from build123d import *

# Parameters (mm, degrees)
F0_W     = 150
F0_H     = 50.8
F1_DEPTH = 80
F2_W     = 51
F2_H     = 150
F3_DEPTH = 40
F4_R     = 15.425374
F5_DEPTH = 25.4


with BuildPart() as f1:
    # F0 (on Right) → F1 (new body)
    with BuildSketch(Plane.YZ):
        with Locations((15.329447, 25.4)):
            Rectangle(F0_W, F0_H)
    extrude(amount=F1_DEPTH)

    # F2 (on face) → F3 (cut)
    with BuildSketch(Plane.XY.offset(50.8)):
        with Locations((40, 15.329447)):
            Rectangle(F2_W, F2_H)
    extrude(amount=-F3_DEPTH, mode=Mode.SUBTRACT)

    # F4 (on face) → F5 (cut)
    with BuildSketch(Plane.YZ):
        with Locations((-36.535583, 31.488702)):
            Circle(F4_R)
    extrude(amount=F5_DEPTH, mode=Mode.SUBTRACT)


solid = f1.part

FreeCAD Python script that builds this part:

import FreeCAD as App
import Part
import Sketcher

V = App.Vector
Q = App.Units.Quantity


def add_polygon(sketch, points):
    """Adds a closed chain of lines whose ends are joined by coincident constraints."""
    first, n = sketch.GeometryCount, len(points)
    for a, b in zip(points, points[1:] + points[:1]):
        sketch.addGeometry(Part.LineSegment(App.Vector(*a, 0), App.Vector(*b, 0)), False)
    for i in range(n):
        sketch.addConstraint(Sketcher.Constraint("Coincident", first + i, 2, first + (i + 1) % n, 1))

doc = App.newDocument("Part")
body = doc.addObject("PartDesign::Body", "Body")

sketch1 = body.newObject("Sketcher::SketchObject", "Sketch")
sketch1.AttachmentSupport = (doc.getObject("YZ_Plane"), [""])
sketch1.MapMode = "FlatFace"
add_polygon(sketch1, [(-59.670553, 50.8), (-59.670553, 0), (90.329447, 0), (90.329447, 50.8)])
sketch1.addConstraint([
    Sketcher.Constraint("Vertical", 0),
    Sketcher.Constraint("Horizontal", 1),
    Sketcher.Constraint("Vertical", 2),
    Sketcher.Constraint("Horizontal", 3),
    Sketcher.Constraint("PointOnObject", 0, 2, -1),
    Sketcher.Constraint("DistanceX", 1, 1, 1, 2, Q("150 mm")),
    Sketcher.Constraint("DistanceY", 0, 2, 0, 1, Q("50.8 mm")),
    Sketcher.Constraint("DistanceX", 0, 2, -1, 1, Q("59.670553 mm")),
])
pad1 = body.newObject("PartDesign::Pad", "Pad")
pad1.Profile = sketch1
pad1.Length = 80

sketch2 = body.newObject("Sketcher::SketchObject", "Sketch001")
sketch2.AttachmentSupport = (doc.getObject("XY_Plane"), [""])
sketch2.MapMode = "FlatFace"
sketch2.AttachmentOffset = App.Placement(V(0, 0, 50.8), App.Rotation())
add_polygon(sketch2, [(14.5, 90.329447), (14.5, -59.670553), (65.5, -59.670553), (65.5, 90.329447)])
sketch2.addConstraint([
    Sketcher.Constraint("Vertical", 0),
    Sketcher.Constraint("Horizontal", 1),
    Sketcher.Constraint("Vertical", 2),
    Sketcher.Constraint("Horizontal", 3),
    Sketcher.Constraint("DistanceX", 1, 1, 1, 2, Q("51 mm")),
    Sketcher.Constraint("DistanceY", 0, 2, 0, 1, Q("150 mm")),
    Sketcher.Constraint("DistanceX", -1, 1, 0, 2, Q("14.5 mm")),
    Sketcher.Constraint("DistanceY", 0, 2, -1, 1, Q("59.670553 mm")),
])
pocket1 = body.newObject("PartDesign::Pocket", "Pocket")
pocket1.Profile = sketch2
pocket1.Length = 40

sketch3 = body.newObject("Sketcher::SketchObject", "Sketch002")
sketch3.AttachmentSupport = (doc.getObject("YZ_Plane"), [""])
sketch3.MapMode = "FlatFace"
sketch3.addGeometry(Part.Circle(V(-36.535583, 31.488702, 0), V(0, 0, 1), 15.425374), False)
sketch3.addConstraint([
    Sketcher.Constraint("Diameter", 0, Q("30.850748 mm")),
    Sketcher.Constraint("DistanceY", -1, 1, 0, 3, Q("31.488702 mm")),
    Sketcher.Constraint("DistanceX", 0, 3, -1, 1, Q("36.535583 mm")),
])
pocket2 = body.newObject("PartDesign::Pocket", "Pocket001")
pocket2.Profile = sketch3
pocket2.Length = 25.4
pocket2.Reversed = True

doc.recompute()
